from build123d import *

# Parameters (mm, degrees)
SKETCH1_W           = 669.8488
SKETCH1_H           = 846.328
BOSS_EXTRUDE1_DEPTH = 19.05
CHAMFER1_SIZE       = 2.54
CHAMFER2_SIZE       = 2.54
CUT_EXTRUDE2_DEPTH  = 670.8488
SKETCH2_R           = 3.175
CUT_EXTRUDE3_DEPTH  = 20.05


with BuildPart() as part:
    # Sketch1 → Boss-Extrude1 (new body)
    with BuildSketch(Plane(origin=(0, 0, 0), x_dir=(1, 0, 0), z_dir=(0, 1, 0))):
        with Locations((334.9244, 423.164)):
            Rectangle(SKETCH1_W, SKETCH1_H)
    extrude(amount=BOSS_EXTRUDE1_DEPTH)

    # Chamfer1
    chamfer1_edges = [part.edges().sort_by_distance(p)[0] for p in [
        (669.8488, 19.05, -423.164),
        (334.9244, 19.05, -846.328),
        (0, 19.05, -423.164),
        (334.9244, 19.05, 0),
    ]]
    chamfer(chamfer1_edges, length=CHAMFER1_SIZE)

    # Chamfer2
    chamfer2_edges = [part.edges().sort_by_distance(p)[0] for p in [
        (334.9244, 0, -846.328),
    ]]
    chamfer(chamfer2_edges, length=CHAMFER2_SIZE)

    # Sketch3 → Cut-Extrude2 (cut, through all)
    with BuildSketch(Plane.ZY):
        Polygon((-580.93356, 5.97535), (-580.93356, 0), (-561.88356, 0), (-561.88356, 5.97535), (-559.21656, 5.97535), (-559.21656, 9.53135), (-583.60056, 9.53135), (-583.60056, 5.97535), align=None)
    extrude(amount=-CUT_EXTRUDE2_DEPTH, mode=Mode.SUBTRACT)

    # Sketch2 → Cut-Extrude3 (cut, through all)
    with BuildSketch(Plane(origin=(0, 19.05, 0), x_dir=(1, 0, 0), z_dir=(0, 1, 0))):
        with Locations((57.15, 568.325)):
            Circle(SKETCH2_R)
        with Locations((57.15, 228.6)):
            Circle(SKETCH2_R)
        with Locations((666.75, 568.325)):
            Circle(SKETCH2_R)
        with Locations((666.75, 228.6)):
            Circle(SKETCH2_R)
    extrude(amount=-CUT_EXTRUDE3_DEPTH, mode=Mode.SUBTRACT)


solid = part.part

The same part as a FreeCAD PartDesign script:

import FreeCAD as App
import Part
import Sketcher
from FreeCAD import Vector
Q = App.Units.Quantity


def edges_at(feature, points):
    """Names of the edges that pass closest to the given points."""
    edges = feature.Shape.Edges
    near = lambda p: min(range(len(edges)), key=lambda i: edges[i].distToShape(Part.Vertex(*p))[0])
    return sorted({f"Edge{near(p) + 1}" for p in points})


def add_polygon(sketch, points):
    """Adds a closed chain of lines whose ends are joined by coincident constraints."""
    first, n = sketch.GeometryCount, len(points)
    for a, b in zip(points, points[1:] + points[:1]):
        sketch.addGeometry(Part.LineSegment(App.Vector(*a, 0), App.Vector(*b, 0)), False)
    for i in range(n):
        sketch.addConstraint(Sketcher.Constraint("Coincident", first + i, 2, first + (i + 1) % n, 1))

doc = App.newDocument("Part")
body = doc.addObject("PartDesign::Body", "Body")

# Sketch on XZ plane
sketch1 = body.newObject("Sketcher::SketchObject", "Sketch")
sketch1.AttachmentSupport = (doc.getObject("XZ_Plane"), [""])
sketch1.MapMode = "FlatFace"
add_polygon(sketch1, [(0, -846.328), (0, 0), (669.8488, 0), (669.8488, -846.328)])  # lines 0-3
sketch1.addConstraint(Sketcher.Constraint("Vertical", 0))
sketch1.addConstraint(Sketcher.Constraint("Horizontal", 1))
sketch1.addConstraint(Sketcher.Constraint("Vertical", 2))
sketch1.addConstraint(Sketcher.Constraint("Horizontal", 3))
sketch1.addConstraint(Sketcher.Constraint("Coincident", 0, 2, -1, 1))
sketch1.addConstraint(Sketcher.Constraint("DistanceY", 0, 1, 0, 2, Q("33.32 in")))
sketch1.addConstraint(Sketcher.Constraint("DistanceX", 1, 1, 1, 2, Q("26.372 in")))
pad1 = body.newObject("PartDesign::Pad", "Pad")
pad1.Profile = sketch1
pad1.Length = Q("0.75 in")
pad1.Reversed = True
doc.recompute()

chamfer = body.newObject("PartDesign::Chamfer", "Chamfer")
chamfer.Base = (pad1, edges_at(pad1, [
    (669.849, 19.05, -423.164),
    (334.924, 19.05, -846.328),
    (0, 19.05, -423.164),
    (334.924, 19.05, 0),
]))
chamfer.Size = Q("0.1 in")
doc.recompute()

chamfer2 = body.newObject("PartDesign::Chamfer", "Chamfer001")
chamfer2.Base = (chamfer, edges_at(chamfer, [(334.924, 0, -846.328)]))
chamfer2.Size = Q("0.1 in")

# Sketch on YZ plane
sketch2 = body.newObject("Sketcher::SketchObject", "Sketch001")
sketch2.AttachmentSupport = (doc.getObject("YZ_Plane"), [""])
sketch2.MapMode = "FlatFace"
add_polygon(sketch2, [(5.97535, -580.93356), (0, -580.93356), (0, -561.88356), (5.97535, -561.88356), (5.97535, -559.21656), (9.53135, -559.21656), (9.53135, -583.60056), (5.97535, -583.60056)])  # lines 0-7
sketch2.addConstraint(Sketcher.Constraint("Horizontal", 0))
sketch2.addConstraint(Sketcher.Constraint("Vertical", 1))
sketch2.addConstraint(Sketcher.Constraint("Horizontal", 2))
sketch2.addConstraint(Sketcher.Constraint("Vertical", 3))
sketch2.addConstraint(Sketcher.Constraint("Horizontal", 4))
sketch2.addConstraint(Sketcher.Constraint("Vertical", 5))
sketch2.addConstraint(Sketcher.Constraint("Horizontal", 6))
sketch2.addConstraint(Sketcher.Constraint("Vertical", 7))
sketch2.addConstraint(Sketcher.Constraint("PointOnObject", 0, 2, -2))
sketch2.addConstraint(Sketcher.Constraint("Vertical", 3, 2, 6, 2))
sketch2.addConstraint(Sketcher.Constraint("Equal", 3, 7))
sketch2.addConstraint(Sketcher.Constraint("DistanceX", 4, 1, 4, 2, Q("0.14 in")))
sketch2.addConstraint(Sketcher.Constraint("DistanceY", 1, 1, 1, 2, Q("0.75 in")))
sketch2.addConstraint(Sketcher.Constraint("DistanceY", 5, 2, 5, 1, Q("0.96 in")))
sketch2.addConstraint(Sketcher.Constraint("DistanceY", 0, 2, -1, 1, Q("22.8714 in")))
sketch2.addConstraint(Sketcher.Constraint("DistanceX", 0, 2, 0, 1, 5.97535))
pocket1 = body.newObject("PartDesign::Pocket", "Pocket")
pocket1.Profile = sketch2
pocket1.Type = "ThroughAll"
pocket1.Reversed = True

# Sketch on XZ plane
sketch3 = body.newObject("Sketcher::SketchObject", "Sketch002")
sketch3.AttachmentSupport = (doc.getObject("XZ_Plane"), [""])
sketch3.MapMode = "FlatFace"
sketch3.AttachmentOffset = App.Placement(Vector(0, 0, -0.75 * 25.4), App.Rotation())
sketch3.addGeometry(Part.Circle(Vector(57.15, -568.325, 0), Vector(0, 0, 1), 3.175), False)
sketch3.addGeometry(Part.Circle(Vector(57.15, -228.6, 0), Vector(0, 0, 1), 3.175), False)
sketch3.addGeometry(Part.Circle(Vector(666.75, -568.325, 0), Vector(0, 0, 1), 3.175), False)
sketch3.addGeometry(Part.Circle(Vector(666.75, -228.6, 0), Vector(0, 0, 1), 3.175), False)
sketch3.addConstraint(Sketcher.Constraint("Equal", 0, 1))
sketch3.addConstraint(Sketcher.Constraint("Equal", 1, 2))
sketch3.addConstraint(Sketcher.Constraint("Equal", 2, 3))
sketch3.addConstraint(Sketcher.Constraint("Horizontal", 0, 3, 2, 3))
sketch3.addConstraint(Sketcher.Constraint("Horizontal", 1, 3, 3, 3))
sketch3.addConstraint(Sketcher.Constraint("Vertical", 0, 3, 1, 3))
sketch3.addConstraint(Sketcher.Constraint("Vertical", 2, 3, 3, 3))
sketch3.addConstraint(Sketcher.Constraint("Diameter", 0, Q("0.25 in")))
sketch3.addConstraint(Sketcher.Constraint("DistanceY", 1, 3, -1, 1, Q("9 in")))
sketch3.addConstraint(Sketcher.Constraint("DistanceX", 0, 3, 2, 3, Q("24 in")))
sketch3.addConstraint(Sketcher.Constraint("DistanceX", -1, 1, 0, 3, Q("2.25 in")))
sketch3.addConstraint(Sketcher.Constraint("DistanceY", 0, 3, -1, 1, Q("22.375 in")))
pocket2 = body.newObject("PartDesign::Pocket", "Pocket001")
pocket2.Profile = sketch3
pocket2.Type = "ThroughAll"
pocket2.Reversed = True

doc.recompute()
